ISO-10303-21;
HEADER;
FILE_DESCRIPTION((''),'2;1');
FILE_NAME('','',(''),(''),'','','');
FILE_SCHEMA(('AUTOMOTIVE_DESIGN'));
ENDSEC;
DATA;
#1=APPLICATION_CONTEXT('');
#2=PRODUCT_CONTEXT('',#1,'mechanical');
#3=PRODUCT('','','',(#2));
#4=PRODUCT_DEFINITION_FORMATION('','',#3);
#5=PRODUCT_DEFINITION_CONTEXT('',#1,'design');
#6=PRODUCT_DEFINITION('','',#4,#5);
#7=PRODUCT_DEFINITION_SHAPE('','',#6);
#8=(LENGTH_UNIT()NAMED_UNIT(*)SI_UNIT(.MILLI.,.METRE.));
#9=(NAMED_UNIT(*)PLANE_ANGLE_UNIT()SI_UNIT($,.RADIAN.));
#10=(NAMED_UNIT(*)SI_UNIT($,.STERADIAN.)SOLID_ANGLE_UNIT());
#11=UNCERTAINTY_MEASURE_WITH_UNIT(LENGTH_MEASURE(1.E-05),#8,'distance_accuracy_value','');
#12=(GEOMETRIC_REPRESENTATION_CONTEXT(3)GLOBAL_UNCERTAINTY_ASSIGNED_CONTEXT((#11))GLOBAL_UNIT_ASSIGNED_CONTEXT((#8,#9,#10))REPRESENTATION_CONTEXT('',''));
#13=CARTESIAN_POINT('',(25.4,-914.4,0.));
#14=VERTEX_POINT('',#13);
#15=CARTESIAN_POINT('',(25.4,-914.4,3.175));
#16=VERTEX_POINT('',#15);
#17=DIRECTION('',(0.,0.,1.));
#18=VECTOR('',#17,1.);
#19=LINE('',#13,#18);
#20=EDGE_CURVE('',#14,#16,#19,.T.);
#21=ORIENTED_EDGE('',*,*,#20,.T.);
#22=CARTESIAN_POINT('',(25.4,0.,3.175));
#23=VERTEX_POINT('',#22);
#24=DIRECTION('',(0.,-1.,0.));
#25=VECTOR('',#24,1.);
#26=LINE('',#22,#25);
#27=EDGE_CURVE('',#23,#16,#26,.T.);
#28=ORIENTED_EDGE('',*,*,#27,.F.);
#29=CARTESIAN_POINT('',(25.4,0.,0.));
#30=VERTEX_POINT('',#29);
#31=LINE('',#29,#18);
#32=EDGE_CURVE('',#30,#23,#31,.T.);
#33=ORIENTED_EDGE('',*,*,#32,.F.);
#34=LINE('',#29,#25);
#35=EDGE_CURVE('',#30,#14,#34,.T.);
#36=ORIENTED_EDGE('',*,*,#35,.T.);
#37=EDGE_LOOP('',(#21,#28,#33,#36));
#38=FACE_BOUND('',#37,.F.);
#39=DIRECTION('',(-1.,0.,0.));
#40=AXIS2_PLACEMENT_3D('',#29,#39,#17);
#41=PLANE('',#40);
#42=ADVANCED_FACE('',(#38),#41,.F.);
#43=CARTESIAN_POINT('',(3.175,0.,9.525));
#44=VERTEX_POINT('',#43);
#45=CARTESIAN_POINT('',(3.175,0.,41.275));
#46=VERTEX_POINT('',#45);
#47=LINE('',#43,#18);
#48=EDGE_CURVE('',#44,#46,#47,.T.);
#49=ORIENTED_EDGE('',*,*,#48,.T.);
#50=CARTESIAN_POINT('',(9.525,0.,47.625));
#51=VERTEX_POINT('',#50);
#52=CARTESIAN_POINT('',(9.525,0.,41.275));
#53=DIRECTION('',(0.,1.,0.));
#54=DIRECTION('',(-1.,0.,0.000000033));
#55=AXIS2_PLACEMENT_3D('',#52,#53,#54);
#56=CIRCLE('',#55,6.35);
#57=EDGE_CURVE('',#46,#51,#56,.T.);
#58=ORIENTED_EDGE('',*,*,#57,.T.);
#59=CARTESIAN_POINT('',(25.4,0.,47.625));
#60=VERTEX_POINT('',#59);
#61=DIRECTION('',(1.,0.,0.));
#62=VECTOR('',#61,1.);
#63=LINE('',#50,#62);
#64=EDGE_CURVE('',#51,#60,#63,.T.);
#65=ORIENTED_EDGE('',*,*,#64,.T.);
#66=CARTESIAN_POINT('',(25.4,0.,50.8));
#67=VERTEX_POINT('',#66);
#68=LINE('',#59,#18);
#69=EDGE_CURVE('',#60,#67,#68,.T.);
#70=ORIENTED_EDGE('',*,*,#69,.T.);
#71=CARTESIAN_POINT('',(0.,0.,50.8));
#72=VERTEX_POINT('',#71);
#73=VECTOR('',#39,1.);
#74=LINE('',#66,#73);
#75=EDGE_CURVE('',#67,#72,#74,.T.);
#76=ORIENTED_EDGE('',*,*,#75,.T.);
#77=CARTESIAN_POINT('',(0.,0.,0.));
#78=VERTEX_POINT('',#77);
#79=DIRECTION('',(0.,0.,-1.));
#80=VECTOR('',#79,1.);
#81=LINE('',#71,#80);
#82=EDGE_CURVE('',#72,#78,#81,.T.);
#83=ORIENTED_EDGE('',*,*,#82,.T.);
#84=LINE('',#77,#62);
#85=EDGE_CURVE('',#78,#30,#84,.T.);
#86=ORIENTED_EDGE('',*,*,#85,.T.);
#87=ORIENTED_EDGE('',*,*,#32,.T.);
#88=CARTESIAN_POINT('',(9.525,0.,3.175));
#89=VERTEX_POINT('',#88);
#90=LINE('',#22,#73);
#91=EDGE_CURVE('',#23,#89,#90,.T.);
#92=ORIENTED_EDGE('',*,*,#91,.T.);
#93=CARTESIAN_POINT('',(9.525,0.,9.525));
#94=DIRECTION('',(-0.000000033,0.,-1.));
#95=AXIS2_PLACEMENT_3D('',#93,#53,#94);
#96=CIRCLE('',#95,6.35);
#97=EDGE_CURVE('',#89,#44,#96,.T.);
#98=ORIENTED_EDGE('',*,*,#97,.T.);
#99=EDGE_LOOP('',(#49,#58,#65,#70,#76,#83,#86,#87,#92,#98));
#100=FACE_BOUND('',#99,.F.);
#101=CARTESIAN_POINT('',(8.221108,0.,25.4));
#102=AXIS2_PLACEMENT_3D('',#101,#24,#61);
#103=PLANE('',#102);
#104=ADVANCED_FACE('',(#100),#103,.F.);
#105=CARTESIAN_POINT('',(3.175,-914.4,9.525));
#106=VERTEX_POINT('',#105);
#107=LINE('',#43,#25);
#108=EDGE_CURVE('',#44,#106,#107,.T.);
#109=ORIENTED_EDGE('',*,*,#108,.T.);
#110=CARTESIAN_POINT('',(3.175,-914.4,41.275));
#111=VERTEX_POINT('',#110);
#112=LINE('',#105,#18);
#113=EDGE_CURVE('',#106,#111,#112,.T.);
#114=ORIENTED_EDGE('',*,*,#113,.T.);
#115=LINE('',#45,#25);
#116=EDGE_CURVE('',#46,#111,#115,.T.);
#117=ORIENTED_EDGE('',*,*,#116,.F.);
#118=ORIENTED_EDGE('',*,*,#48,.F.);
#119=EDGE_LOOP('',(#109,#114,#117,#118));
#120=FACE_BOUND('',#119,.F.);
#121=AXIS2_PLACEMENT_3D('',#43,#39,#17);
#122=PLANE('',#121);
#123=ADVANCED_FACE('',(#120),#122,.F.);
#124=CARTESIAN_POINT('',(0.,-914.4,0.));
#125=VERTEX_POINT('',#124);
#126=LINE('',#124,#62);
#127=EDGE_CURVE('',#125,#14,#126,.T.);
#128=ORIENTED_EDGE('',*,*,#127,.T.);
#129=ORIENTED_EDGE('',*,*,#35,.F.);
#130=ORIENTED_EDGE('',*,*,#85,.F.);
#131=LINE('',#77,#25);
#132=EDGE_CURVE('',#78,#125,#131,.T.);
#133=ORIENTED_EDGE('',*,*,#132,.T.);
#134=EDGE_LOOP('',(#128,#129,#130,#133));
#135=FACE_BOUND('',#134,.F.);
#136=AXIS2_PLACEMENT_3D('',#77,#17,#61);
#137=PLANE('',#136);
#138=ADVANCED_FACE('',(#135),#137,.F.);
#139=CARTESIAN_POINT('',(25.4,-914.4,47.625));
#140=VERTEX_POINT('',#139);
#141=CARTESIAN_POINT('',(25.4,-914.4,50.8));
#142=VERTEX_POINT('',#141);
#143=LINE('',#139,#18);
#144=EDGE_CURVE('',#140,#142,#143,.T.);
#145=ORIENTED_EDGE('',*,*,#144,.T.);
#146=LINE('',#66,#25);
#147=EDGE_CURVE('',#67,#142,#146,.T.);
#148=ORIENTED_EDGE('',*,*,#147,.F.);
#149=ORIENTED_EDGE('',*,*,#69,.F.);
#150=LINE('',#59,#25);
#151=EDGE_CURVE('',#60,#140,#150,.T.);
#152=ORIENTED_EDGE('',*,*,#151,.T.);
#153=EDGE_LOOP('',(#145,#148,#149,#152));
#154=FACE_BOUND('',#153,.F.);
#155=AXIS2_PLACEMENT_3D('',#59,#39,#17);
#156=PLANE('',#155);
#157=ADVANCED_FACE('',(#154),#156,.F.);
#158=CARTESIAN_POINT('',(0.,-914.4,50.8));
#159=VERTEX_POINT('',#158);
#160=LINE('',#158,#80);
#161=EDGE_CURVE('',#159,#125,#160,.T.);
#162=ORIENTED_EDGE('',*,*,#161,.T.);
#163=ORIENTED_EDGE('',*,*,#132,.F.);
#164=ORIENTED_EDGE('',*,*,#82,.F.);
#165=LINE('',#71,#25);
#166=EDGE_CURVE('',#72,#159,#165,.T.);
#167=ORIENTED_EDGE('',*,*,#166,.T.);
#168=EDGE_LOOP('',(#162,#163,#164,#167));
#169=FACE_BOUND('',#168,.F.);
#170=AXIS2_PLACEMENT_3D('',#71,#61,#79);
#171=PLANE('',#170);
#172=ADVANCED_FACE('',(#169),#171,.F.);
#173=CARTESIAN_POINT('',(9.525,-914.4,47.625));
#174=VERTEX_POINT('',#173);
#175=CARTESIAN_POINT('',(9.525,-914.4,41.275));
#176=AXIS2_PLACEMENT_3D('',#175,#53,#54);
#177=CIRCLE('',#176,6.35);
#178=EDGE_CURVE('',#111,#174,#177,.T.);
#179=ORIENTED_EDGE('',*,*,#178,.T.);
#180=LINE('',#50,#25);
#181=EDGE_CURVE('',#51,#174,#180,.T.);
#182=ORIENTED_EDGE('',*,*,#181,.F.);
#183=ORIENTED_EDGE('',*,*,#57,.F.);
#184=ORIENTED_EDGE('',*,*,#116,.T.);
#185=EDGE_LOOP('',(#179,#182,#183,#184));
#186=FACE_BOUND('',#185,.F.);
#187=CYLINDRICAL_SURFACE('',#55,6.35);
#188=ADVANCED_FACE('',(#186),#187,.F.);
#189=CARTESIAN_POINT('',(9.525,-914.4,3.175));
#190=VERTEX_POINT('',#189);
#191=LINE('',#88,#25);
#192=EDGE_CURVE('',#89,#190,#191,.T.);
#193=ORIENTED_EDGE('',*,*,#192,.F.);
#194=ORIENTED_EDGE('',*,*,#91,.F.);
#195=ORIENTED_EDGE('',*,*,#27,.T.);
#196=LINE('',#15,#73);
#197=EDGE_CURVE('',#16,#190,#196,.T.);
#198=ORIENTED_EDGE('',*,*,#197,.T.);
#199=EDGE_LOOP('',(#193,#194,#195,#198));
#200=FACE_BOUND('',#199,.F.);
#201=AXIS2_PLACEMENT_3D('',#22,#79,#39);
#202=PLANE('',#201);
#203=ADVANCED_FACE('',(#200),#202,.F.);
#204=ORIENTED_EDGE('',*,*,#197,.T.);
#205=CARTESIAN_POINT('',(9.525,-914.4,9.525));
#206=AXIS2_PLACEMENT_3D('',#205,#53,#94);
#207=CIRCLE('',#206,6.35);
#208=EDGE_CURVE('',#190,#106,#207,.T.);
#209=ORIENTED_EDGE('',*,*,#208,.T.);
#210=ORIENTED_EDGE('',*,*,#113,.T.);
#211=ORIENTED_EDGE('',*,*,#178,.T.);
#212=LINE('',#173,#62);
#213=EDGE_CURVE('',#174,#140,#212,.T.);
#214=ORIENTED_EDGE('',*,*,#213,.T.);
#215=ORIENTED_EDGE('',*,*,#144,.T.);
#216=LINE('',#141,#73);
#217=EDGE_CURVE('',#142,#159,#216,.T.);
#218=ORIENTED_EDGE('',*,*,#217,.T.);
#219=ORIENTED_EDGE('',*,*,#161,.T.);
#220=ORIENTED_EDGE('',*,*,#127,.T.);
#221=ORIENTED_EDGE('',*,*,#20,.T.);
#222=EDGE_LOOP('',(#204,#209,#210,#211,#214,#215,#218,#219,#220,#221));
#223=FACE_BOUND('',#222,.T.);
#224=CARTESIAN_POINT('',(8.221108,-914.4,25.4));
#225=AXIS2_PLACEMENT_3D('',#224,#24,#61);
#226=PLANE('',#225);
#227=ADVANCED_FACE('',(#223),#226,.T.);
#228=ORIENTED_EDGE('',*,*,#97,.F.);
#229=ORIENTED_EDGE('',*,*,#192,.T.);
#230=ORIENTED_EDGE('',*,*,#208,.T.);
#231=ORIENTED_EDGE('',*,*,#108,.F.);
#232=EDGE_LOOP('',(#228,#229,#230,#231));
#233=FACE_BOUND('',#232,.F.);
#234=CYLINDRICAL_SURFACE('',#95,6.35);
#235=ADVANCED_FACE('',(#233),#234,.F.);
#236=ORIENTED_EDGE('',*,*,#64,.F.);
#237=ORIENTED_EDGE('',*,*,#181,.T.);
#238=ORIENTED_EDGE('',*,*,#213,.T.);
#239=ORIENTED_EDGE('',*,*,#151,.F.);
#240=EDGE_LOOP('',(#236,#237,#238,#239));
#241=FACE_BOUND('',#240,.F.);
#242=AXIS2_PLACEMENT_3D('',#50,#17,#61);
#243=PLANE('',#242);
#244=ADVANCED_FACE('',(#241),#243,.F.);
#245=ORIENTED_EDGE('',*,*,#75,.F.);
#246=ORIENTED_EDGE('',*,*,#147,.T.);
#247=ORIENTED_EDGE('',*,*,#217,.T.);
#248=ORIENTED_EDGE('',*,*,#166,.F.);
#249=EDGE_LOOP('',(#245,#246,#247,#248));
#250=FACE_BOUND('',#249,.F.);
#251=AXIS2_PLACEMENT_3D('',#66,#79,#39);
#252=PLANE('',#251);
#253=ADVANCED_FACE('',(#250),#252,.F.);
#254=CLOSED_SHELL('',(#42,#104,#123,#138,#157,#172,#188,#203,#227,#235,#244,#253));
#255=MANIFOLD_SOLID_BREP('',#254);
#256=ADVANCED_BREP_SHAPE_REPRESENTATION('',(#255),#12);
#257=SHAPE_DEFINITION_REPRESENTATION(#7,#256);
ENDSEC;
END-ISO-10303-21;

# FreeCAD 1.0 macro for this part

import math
import FreeCAD as App
import Part
import Sketcher
Q = App.Units.Quantity

doc = App.newDocument("Part")
body = doc.addObject("PartDesign::Body", "Body")

# Sketch on XZ plane
sketch1 = doc.addObject("Sketcher::SketchObject", "Sketch")
body.addObject(sketch1)
sketch1.AttachmentSupport = (doc.XZ_Plane, [""])
sketch1.MapMode = "FlatFace"
sketch1.addGeometry([
    Part.LineSegment(App.Vector(0, 50.8, 0), App.Vector(0, 0, 0)),  # 0
    Part.LineSegment(App.Vector(0, 0, 0), App.Vector(25.4, 0, 0)),  # 1
    Part.LineSegment(App.Vector(25.4, 0, 0), App.Vector(25.4, 3.2, 0)),  # 2
    Part.LineSegment(App.Vector(25.4, 3.2, 0), App.Vector(9.5, 3.2, 0)),  # 3
    Part.ArcOfCircle(Part.Circle(App.Vector(9.5, 9.5, 0), App.Vector(0, 0, 1), 6.4), math.radians(-180), math.radians(-90)),  # 4
    Part.LineSegment(App.Vector(3.2, 9.5, 0), App.Vector(3.2, 41.3, 0)),  # 5
    Part.ArcOfCircle(Part.Circle(App.Vector(9.5, 41.3, 0), App.Vector(0, 0, 1), 6.4), math.radians(90), math.radians(180)),  # 6
    Part.LineSegment(App.Vector(9.5, 47.6, 0), App.Vector(25.4, 47.6, 0)),  # 7
    Part.LineSegment(App.Vector(25.4, 47.6, 0), App.Vector(25.4, 50.8, 0)),  # 8
    Part.LineSegment(App.Vector(25.4, 50.8, 0), App.Vector(0, 50.8, 0)),  # 9
], False)
sketch1.addConstraint([
    Sketcher.Constraint("Coincident", 0, 2, 1, 1),
    Sketcher.Constraint("Coincident", 1, 2, 2, 1),
    Sketcher.Constraint("Coincident", 2, 2, 3, 1),
    Sketcher.Constraint("Tangent", 3, 2, 4, 2),
    Sketcher.Constraint("Tangent", 4, 1, 5, 1),
    Sketcher.Constraint("Tangent", 5, 2, 6, 2),
    Sketcher.Constraint("Tangent", 6, 1, 7, 1),
    Sketcher.Constraint("Coincident", 7, 2, 8, 1),
    Sketcher.Constraint("Coincident", 8, 2, 9, 1),
    Sketcher.Constraint("Coincident", 9, 2, 0, 1),
    Sketcher.Constraint("Vertical", 0),
    Sketcher.Constraint("Horizontal", 1),
    Sketcher.Constraint("Vertical", 2),
    Sketcher.Constraint("Horizontal", 3),
    Sketcher.Constraint("Vertical", 5),
    Sketcher.Constraint("Horizontal", 7),
    Sketcher.Constraint("Vertical", 8),
    Sketcher.Constraint("Horizontal", 9),
    Sketcher.Constraint("Coincident", 0, 2, -1, 1),
    Sketcher.Constraint("Equal", 4, 6),
    Sketcher.Constraint("Vertical", 2, 2, 7, 2),
    Sketcher.Constraint("Equal", 2, 8),
    Sketcher.Constraint("DistanceX", 1, 1, 1, 2, Q("1 in")),
    Sketcher.Constraint("DistanceY", 0, 2, 0, 1, Q("2 in")),
    Sketcher.Constraint("Radius", 4, Q("0.25 in")),
    Sketcher.Constraint("DistanceY", 5, 1, 5, 2, Q("1.25 in")),
    Sketcher.Constraint("DistanceX", 3, 2, 3, 1, Q("0.625 in")),
])
pad1 = doc.addObject("PartDesign::Pad", "Pad")
body.addObject(pad1)
pad1.Profile = sketch1
pad1.Length = Q("36 in")

doc.recompute()
